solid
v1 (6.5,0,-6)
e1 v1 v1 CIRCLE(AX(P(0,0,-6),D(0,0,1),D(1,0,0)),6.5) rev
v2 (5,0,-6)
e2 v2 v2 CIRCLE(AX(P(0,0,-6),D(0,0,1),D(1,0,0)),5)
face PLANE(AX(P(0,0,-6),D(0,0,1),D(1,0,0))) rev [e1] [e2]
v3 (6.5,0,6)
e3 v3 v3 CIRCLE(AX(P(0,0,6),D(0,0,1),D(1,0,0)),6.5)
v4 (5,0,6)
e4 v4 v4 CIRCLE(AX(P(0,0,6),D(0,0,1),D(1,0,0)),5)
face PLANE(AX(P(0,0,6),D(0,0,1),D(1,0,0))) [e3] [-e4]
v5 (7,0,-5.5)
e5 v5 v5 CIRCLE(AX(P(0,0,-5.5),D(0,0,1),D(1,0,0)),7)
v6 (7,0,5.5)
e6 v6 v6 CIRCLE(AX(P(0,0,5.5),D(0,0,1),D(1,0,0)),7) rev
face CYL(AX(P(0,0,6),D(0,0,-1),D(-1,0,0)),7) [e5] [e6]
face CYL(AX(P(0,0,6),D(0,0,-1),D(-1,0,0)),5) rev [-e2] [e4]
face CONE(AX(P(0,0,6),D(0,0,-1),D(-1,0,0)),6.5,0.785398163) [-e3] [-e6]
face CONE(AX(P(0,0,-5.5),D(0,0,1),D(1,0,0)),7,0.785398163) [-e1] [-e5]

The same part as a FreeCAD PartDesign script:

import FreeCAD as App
import Part
import Sketcher
from FreeCAD import Vector


def edges_at(feature, points):
    """Names of the edges that pass closest to the given points."""
    edges = feature.Shape.Edges
    near = lambda p: min(range(len(edges)), key=lambda i: edges[i].distToShape(Part.Vertex(*p))[0])
    return sorted({f"Edge{near(p) + 1}" for p in points})

doc = App.newDocument("Part")
body = doc.addObject("PartDesign::Body", "Body")

# Sketch on XY plane
sketch1 = body.newObject("Sketcher::SketchObject", "Sketch")
sketch1.AttachmentSupport = (doc.getObject("XY_Plane"), [""])
sketch1.MapMode = "FlatFace"
sketch1.addGeometry(Part.Circle(Vector(0, 0, 0), Vector(0, 0, 1), 7), False)
sketch1.addGeometry(Part.Circle(Vector(0, 0, 0), Vector(0, 0, 1), 5), False)
sketch1.addConstraint(Sketcher.Constraint("Coincident", 0, 3, -1, 1))
sketch1.addConstraint(Sketcher.Constraint("Coincident", 1, 3, -1, 1))
sketch1.addConstraint(Sketcher.Constraint("Diameter", 0, 14.0))
sketch1.addConstraint(Sketcher.Constraint("Diameter", 1, 10.0))
pad1 = body.newObject("PartDesign::Pad", "Pad")
pad1.Profile = sketch1
pad1.Length = 12
pad1.Midplane = True
doc.recompute()

chamfer = body.newObject("PartDesign::Chamfer", "Chamfer")
chamfer.Base = (pad1, edges_at(pad1, [(-7, 0, -6), (-7, 0, 6)]))
chamfer.Size = 0.5

doc.recompute()
